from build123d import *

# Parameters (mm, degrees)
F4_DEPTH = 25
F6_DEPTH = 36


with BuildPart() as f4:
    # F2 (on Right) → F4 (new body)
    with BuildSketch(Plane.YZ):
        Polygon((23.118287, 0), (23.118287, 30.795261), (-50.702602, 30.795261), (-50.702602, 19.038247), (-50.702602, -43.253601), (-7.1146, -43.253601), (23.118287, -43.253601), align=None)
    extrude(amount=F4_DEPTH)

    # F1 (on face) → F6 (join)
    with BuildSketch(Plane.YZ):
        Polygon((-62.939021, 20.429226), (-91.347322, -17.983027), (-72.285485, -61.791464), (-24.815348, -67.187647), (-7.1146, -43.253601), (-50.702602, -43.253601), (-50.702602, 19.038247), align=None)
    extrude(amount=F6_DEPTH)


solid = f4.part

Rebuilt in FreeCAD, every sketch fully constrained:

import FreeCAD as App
import Part
import Sketcher
from FreeCAD import Vector

doc = App.newDocument("Part")
params = doc.addObject("Spreadsheet::Sheet", "Params")
for row, (alias, value) in enumerate([
    ("pad1_length", "25 mm"),
    ("pad2_length", "36 mm"),
], start=1):
    params.set(f"A{row}", alias)
    params.set(f"B{row}", "=" + value)
    params.setAlias(f"B{row}", alias)

body = doc.addObject("PartDesign::Body", "Body")

# Sketch on YZ plane
sketch1 = doc.addObject("Sketcher::SketchObject", "Sketch")
body.addObject(sketch1)
sketch1.AttachmentSupport = (doc.YZ_Plane, [""])
sketch1.MapMode = "FlatFace"
sketch1.addGeometry(Part.LineSegment(Vector(23, 31, 0), Vector(-51, 31, 0)), False)
sketch1.addGeometry(Part.LineSegment(Vector(-51, 31, 0), Vector(-51, -43, 0)), False)
sketch1.addGeometry(Part.LineSegment(Vector(-51, -43, 0), Vector(23, -43, 0)), False)
sketch1.addGeometry(Part.LineSegment(Vector(23, -43, 0), Vector(23, 31, 0)), False)
sketch1.addConstraint(Sketcher.Constraint("Coincident", 0, 2, 1, 1))
sketch1.addConstraint(Sketcher.Constraint("Coincident", 1, 2, 2, 1))
sketch1.addConstraint(Sketcher.Constraint("Coincident", 2, 2, 3, 1))
sketch1.addConstraint(Sketcher.Constraint("Coincident", 3, 2, 0, 1))
sketch1.addConstraint(Sketcher.Constraint("Horizontal", 0))
sketch1.addConstraint(Sketcher.Constraint("Vertical", 1))
sketch1.addConstraint(Sketcher.Constraint("Horizontal", 2))
sketch1.addConstraint(Sketcher.Constraint("Vertical", 3))
sketch1.addConstraint(Sketcher.Constraint("DistanceX", 0, 2, 0, 1, 73.820889))
sketch1.addConstraint(Sketcher.Constraint("DistanceY", 1, 2, 1, 1, 74.048862))
sketch1.addConstraint(Sketcher.Constraint("DistanceY", 1, 2, -1, 1, 43.253601))
sketch1.addConstraint(Sketcher.Constraint("DistanceX", 0, 2, -1, 1, 50.702602))
pad1 = doc.addObject("PartDesign::Pad", "Pad")
body.addObject(pad1)
pad1.Profile = sketch1
pad1.setExpression("Length", "Params.pad1_length")

# Sketch on YZ plane
sketch2 = doc.addObject("Sketcher::SketchObject", "Sketch001")
body.addObject(sketch2)
sketch2.AttachmentSupport = (doc.YZ_Plane, [""])
sketch2.MapMode = "FlatFace"
sketch2.addGeometry(Part.LineSegment(Vector(-63, 20, 0), Vector(-91, -18, 0)), False)
sketch2.addGeometry(Part.LineSegment(Vector(-91, -18, 0), Vector(-72, -62, 0)), False)
sketch2.addGeometry(Part.LineSegment(Vector(-72, -62, 0), Vector(-25, -67, 0)), False)
sketch2.addGeometry(Part.LineSegment(Vector(-25, -67, 0), Vector(-7, -43, 0)), False)
sketch2.addGeometry(Part.LineSegment(Vector(-7, -43, 0), Vector(-51, -43, 0)), False)
sketch2.addGeometry(Part.LineSegment(Vector(-51, -43, 0), Vector(-51, 19, 0)), False)
sketch2.addGeometry(Part.LineSegment(Vector(-51, 19, 0), Vector(-63, 20, 0)), False)
sketch2.addConstraint(Sketcher.Constraint("Coincident", 0, 2, 1, 1))
sketch2.addConstraint(Sketcher.Constraint("Coincident", 1, 2, 2, 1))
sketch2.addConstraint(Sketcher.Constraint("Coincident", 2, 2, 3, 1))
sketch2.addConstraint(Sketcher.Constraint("Coincident", 3, 2, 4, 1))
sketch2.addConstraint(Sketcher.Constraint("Coincident", 4, 2, 5, 1))
sketch2.addConstraint(Sketcher.Constraint("Coincident", 5, 2, 6, 1))
sketch2.addConstraint(Sketcher.Constraint("Coincident", 6, 2, 0, 1))
sketch2.addConstraint(Sketcher.Constraint("Horizontal", 4))
sketch2.addConstraint(Sketcher.Constraint("Vertical", 5))
sketch2.addConstraint(Sketcher.Constraint("Parallel", 0, 3))
sketch2.addConstraint(Sketcher.Constraint("Parallel", 2, 6))
sketch2.addConstraint(Sketcher.Constraint("Equal", 0, 1))
sketch2.addConstraint(Sketcher.Constraint("Equal", 1, 2))
sketch2.addConstraint(Sketcher.Constraint("DistanceX", 4, 2, 4, 1, 43.588002))
sketch2.addConstraint(Sketcher.Constraint("DistanceY", 5, 1, 5, 2, 62.291848))
sketch2.addConstraint(Sketcher.Constraint("DistanceX", 3, 2, -1, 1, 7.1146))
sketch2.addConstraint(Sketcher.Constraint("DistanceY", 3, 2, -1, 1, 43.253601))
sketch2.addConstraint(Sketcher.Constraint("DistanceX", 0, 2, 6, 2, 28.408301))
sketch2.addConstraint(Sketcher.Constraint("Distance", 0, 47.775859))
sketch2.addConstraint(Sketcher.Constraint("DistanceX", 2, 2, -1, 1, 24.815348))
sketch2.addConstraint(Sketcher.Constraint("DistanceX", 6, 2, -1, 1, 62.939021))
pad2 = doc.addObject("PartDesign::Pad", "Pad001")
body.addObject(pad2)
pad2.Profile = sketch2
pad2.setExpression("Length", "Params.pad2_length")

doc.recompute()
